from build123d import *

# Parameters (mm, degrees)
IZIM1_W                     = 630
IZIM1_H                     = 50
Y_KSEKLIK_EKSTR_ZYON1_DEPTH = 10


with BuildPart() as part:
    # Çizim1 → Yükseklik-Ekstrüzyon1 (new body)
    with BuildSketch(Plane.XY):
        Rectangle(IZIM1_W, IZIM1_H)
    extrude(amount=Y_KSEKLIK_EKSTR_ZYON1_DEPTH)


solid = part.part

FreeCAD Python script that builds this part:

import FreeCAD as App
import Part
import Sketcher

V = App.Vector
Q = App.Units.Quantity


def add_polygon(sketch, points):
    """Adds a closed chain of lines whose ends are joined by coincident constraints."""
    first, n = sketch.GeometryCount, len(points)
    for a, b in zip(points, points[1:] + points[:1]):
        sketch.addGeometry(Part.LineSegment(App.Vector(*a, 0), App.Vector(*b, 0)), False)
    for i in range(n):
        sketch.addConstraint(Sketcher.Constraint("Coincident", first + i, 2, first + (i + 1) % n, 1))

doc = App.newDocument("Part")
body = doc.addObject("PartDesign::Body", "Body")

sketch1 = body.newObject("Sketcher::SketchObject", "Sketch")
sketch1.AttachmentSupport = (doc.getObject("XY_Plane"), [""])
sketch1.MapMode = "FlatFace"
add_polygon(sketch1, [(-315, 25), (-315, -25), (315, -25), (315, 25)])
sketch1.addConstraint([
    Sketcher.Constraint("Vertical", 0),
    Sketcher.Constraint("Horizontal", 1),
    Sketcher.Constraint("Vertical", 2),
    Sketcher.Constraint("Horizontal", 3),
    Sketcher.Constraint("Symmetric", 0, 2, 2, 2, -1, 1),
    Sketcher.Constraint("DistanceX", 1, 1, 1, 2, Q("630 mm")),
    Sketcher.Constraint("DistanceY", 0, 2, 0, 1, Q("50 mm")),
])
pad1 = body.newObject("PartDesign::Pad", "Pad")
pad1.Profile = sketch1
pad1.Length = 10

doc.recompute()
